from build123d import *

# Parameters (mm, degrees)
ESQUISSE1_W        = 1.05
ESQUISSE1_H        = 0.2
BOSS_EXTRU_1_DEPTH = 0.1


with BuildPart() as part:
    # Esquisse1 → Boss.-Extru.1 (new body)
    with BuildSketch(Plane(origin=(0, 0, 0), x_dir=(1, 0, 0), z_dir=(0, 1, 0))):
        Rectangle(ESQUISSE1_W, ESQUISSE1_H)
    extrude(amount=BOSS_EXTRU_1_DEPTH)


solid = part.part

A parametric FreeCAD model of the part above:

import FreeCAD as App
import Part
import Sketcher

V = App.Vector

doc = App.newDocument("Part")
body = doc.addObject("PartDesign::Body", "Body")

sketch1 = body.newObject("Sketcher::SketchObject", "Sketch")
sketch1.AttachmentSupport = (doc.getObject("XZ_Plane"), [""])
sketch1.MapMode = "FlatFace"
sketch1.addGeometry(Part.LineSegment(V(-0.53, -0.1, 0), V(-0.53, 0.1, 0)), False)
sketch1.addGeometry(Part.LineSegment(V(-0.53, 0.1, 0), V(0.53, 0.1, 0)), False)
sketch1.addGeometry(Part.LineSegment(V(0.53, 0.1, 0), V(0.53, -0.1, 0)), False)
sketch1.addGeometry(Part.LineSegment(V(0.53, -0.1, 0), V(-0.53, -0.1, 0)), False)
sketch1.addConstraint(Sketcher.Constraint("Coincident", 0, 2, 1, 1))
sketch1.addConstraint(Sketcher.Constraint("Coincident", 1, 2, 2, 1))
sketch1.addConstraint(Sketcher.Constraint("Coincident", 2, 2, 3, 1))
sketch1.addConstraint(Sketcher.Constraint("Coincident", 3, 2, 0, 1))
sketch1.addConstraint(Sketcher.Constraint("Vertical", 0))
sketch1.addConstraint(Sketcher.Constraint("Horizontal", 1))
sketch1.addConstraint(Sketcher.Constraint("Vertical", 2))
sketch1.addConstraint(Sketcher.Constraint("Horizontal", 3))
sketch1.addConstraint(Sketcher.Constraint("Symmetric", 0, 2, 2, 2, -1, 1))
sketch1.addConstraint(Sketcher.Constraint("DistanceY", 0, 1, 0, 2, 0.2))
sketch1.addConstraint(Sketcher.Constraint("DistanceX", 1, 1, 1, 2, 1.05))
pad1 = body.newObject("PartDesign::Pad", "Pad")
pad1.Profile = sketch1
pad1.Length = 0.1
pad1.Reversed = True

doc.recompute()
